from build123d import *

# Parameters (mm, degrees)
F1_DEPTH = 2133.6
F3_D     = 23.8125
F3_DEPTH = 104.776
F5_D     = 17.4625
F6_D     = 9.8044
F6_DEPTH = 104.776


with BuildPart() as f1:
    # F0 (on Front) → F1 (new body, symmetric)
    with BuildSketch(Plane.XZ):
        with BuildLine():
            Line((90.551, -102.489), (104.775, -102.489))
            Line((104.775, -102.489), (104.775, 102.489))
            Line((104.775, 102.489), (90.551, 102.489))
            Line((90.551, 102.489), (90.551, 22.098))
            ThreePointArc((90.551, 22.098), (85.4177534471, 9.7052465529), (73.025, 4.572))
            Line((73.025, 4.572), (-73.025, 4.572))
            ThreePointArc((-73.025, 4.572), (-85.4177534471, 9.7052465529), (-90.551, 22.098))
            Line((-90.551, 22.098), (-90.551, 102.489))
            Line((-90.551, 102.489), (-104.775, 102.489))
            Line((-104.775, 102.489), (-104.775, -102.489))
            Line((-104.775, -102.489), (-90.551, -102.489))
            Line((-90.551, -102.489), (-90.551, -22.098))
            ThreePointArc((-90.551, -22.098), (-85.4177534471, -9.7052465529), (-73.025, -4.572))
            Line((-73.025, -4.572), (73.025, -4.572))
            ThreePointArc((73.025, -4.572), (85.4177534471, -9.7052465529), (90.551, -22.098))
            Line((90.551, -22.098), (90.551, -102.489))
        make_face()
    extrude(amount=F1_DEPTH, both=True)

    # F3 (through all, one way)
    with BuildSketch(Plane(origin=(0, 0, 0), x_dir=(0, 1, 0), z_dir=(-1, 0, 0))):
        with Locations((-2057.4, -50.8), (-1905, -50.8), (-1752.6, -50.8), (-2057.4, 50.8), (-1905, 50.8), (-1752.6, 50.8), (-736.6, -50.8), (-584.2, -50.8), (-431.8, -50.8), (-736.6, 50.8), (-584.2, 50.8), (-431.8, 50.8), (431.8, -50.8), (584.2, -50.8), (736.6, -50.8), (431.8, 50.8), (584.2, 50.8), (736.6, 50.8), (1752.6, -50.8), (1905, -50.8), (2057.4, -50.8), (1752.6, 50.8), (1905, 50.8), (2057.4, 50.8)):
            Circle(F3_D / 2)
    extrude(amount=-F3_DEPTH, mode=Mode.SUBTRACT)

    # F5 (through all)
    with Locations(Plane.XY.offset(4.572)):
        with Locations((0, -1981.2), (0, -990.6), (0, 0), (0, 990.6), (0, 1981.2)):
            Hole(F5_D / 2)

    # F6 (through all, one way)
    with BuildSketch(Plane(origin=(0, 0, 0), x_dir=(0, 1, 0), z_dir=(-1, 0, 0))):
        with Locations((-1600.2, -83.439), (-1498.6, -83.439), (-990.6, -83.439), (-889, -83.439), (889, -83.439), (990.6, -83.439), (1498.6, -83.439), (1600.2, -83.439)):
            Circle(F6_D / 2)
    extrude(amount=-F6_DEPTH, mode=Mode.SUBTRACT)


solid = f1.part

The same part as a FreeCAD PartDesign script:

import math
import FreeCAD as App
import Part
import Sketcher
from FreeCAD import Vector
Q = App.Units.Quantity

doc = App.newDocument("Part")
body = doc.addObject("PartDesign::Body", "Body")

# Sketch on XZ plane
sketch1 = body.newObject("Sketcher::SketchObject", "Sketch")
sketch1.AttachmentSupport = (doc.getObject("XZ_Plane"), [""])
sketch1.MapMode = "FlatFace"
sketch1.addGeometry([
    Part.LineSegment(Vector(91, -102, 0), Vector(105, -102, 0)),  # 0
    Part.LineSegment(Vector(105, -102, 0), Vector(105, 102, 0)),  # 1
    Part.LineSegment(Vector(105, 102, 0), Vector(91, 102, 0)),  # 2
    Part.LineSegment(Vector(91, 102, 0), Vector(91, 22, 0)),  # 3
    Part.ArcOfCircle(Part.Circle(Vector(73, 22, 0), Vector(0, 0, 1), 18), math.radians(-90), math.radians(0)),  # 4
    Part.LineSegment(Vector(73, 5, 0), Vector(-73, 5, 0)),  # 5
    Part.ArcOfCircle(Part.Circle(Vector(-73, 22, 0), Vector(0, 0, 1), 18), math.radians(180), math.radians(270)),  # 6
    Part.LineSegment(Vector(-91, 22, 0), Vector(-91, 102, 0)),  # 7
    Part.LineSegment(Vector(-91, 102, 0), Vector(-105, 102, 0)),  # 8
    Part.LineSegment(Vector(-105, 102, 0), Vector(-105, -102, 0)),  # 9
    Part.LineSegment(Vector(-105, -102, 0), Vector(-91, -102, 0)),  # 10
    Part.LineSegment(Vector(-91, -102, 0), Vector(-91, -22, 0)),  # 11
    Part.ArcOfCircle(Part.Circle(Vector(-73, -22, 0), Vector(0, 0, 1), 18), math.radians(90), math.radians(180)),  # 12
    Part.LineSegment(Vector(-73, -5, 0), Vector(73, -5, 0)),  # 13
    Part.ArcOfCircle(Part.Circle(Vector(73, -22, 0), Vector(0, 0, 1), 18), math.radians(0), math.radians(90)),  # 14
    Part.LineSegment(Vector(91, -22, 0), Vector(91, -102, 0)),  # 15
], False)
sketch1.addConstraint([
    Sketcher.Constraint("Coincident", 0, 2, 1, 1),
    Sketcher.Constraint("Coincident", 1, 2, 2, 1),
    Sketcher.Constraint("Coincident", 2, 2, 3, 1),
    Sketcher.Constraint("Tangent", 3, 2, 4, 2),
    Sketcher.Constraint("Tangent", 4, 1, 5, 1),
    Sketcher.Constraint("Tangent", 5, 2, 6, 2),
    Sketcher.Constraint("Tangent", 6, 1, 7, 1),
    Sketcher.Constraint("Coincident", 7, 2, 8, 1),
    Sketcher.Constraint("Coincident", 8, 2, 9, 1),
    Sketcher.Constraint("Coincident", 9, 2, 10, 1),
    Sketcher.Constraint("Coincident", 10, 2, 11, 1),
    Sketcher.Constraint("Tangent", 11, 2, 12, 2),
    Sketcher.Constraint("Tangent", 12, 1, 13, 1),
    Sketcher.Constraint("Tangent", 13, 2, 14, 2),
    Sketcher.Constraint("Tangent", 14, 1, 15, 1),
    Sketcher.Constraint("Coincident", 15, 2, 0, 1),
    Sketcher.Constraint("Horizontal", 0),
    Sketcher.Constraint("Vertical", 1),
    Sketcher.Constraint("Horizontal", 2),
    Sketcher.Constraint("Vertical", 3),
    Sketcher.Constraint("Horizontal", 5),
    Sketcher.Constraint("Vertical", 7),
    Sketcher.Constraint("Horizontal", 8),
    Sketcher.Constraint("Vertical", 9),
    Sketcher.Constraint("Horizontal", 10),
    Sketcher.Constraint("Vertical", 11),
    Sketcher.Constraint("Horizontal", 13),
    Sketcher.Constraint("Vertical", 15),
    Sketcher.Constraint("Equal", 4, 6),
    Sketcher.Constraint("Equal", 6, 12),
    Sketcher.Constraint("Equal", 12, 14),
    Sketcher.Constraint("Symmetric", 4, 3, 12, 3, -1, 1),
    Sketcher.Constraint("Symmetric", 0, 2, 8, 2, -1, 1),
    Sketcher.Constraint("Symmetric", 2, 2, 7, 2, -2),
    Sketcher.Constraint("Symmetric", 10, 2, 15, 2, -2),
    Sketcher.Constraint("Radius", 4, Q("0.69 in")),
    Sketcher.Constraint("DistanceX", 12, 3, 0, 2, Q("7 in")),
    Sketcher.Constraint("DistanceX", 0, 1, 0, 2, Q("0.56 in")),
    Sketcher.Constraint("DistanceY", 1, 1, 1, 2, Q("8.07 in")),
    Sketcher.Constraint("DistanceY", 3, 2, 3, 1, Q("3.165 in")),
])
pad1 = body.newObject("PartDesign::Pad", "Pad")
pad1.Profile = sketch1
pad1.Length = Q("168 in")
pad1.Midplane = True

# Sketch on YZ plane
sketch2 = body.newObject("Sketcher::SketchObject", "Sketch001")
sketch2.AttachmentSupport = (doc.getObject("YZ_Plane"), [""])
sketch2.MapMode = "FlatFace"
sketch2.addGeometry([
    Part.Circle(Vector(2057, -51, 0), Vector(0, 0, 1), 12),  # 0
    Part.Circle(Vector(-2057, 51, 0), Vector(0, 0, 1), 12),  # 1
    Part.Circle(Vector(-1905, 51, 0), Vector(0, 0, 1), 12),  # 2
    Part.Circle(Vector(-1753, 51, 0), Vector(0, 0, 1), 12),  # 3
    Part.Circle(Vector(-2057, -51, 0), Vector(0, 0, 1), 12),  # 4
    Part.Circle(Vector(-1905, -51, 0), Vector(0, 0, 1), 12),  # 5
    Part.Circle(Vector(-1753, -51, 0), Vector(0, 0, 1), 12),  # 6
    Part.Circle(Vector(-737, 51, 0), Vector(0, 0, 1), 12),  # 7
    Part.Circle(Vector(-584, 51, 0), Vector(0, 0, 1), 12),  # 8
    Part.Circle(Vector(-432, 51, 0), Vector(0, 0, 1), 12),  # 9
    Part.Circle(Vector(-737, -51, 0), Vector(0, 0, 1), 12),  # 10
    Part.Circle(Vector(-584, -51, 0), Vector(0, 0, 1), 12),  # 11
    Part.Circle(Vector(-432, -51, 0), Vector(0, 0, 1), 12),  # 12
    Part.Circle(Vector(432, 51, 0), Vector(0, 0, 1), 12),  # 13
    Part.Circle(Vector(584, 51, 0), Vector(0, 0, 1), 12),  # 14
    Part.Circle(Vector(737, 51, 0), Vector(0, 0, 1), 12),  # 15
    Part.Circle(Vector(432, -51, 0), Vector(0, 0, 1), 12),  # 16
    Part.Circle(Vector(584, -51, 0), Vector(0, 0, 1), 12),  # 17
    Part.Circle(Vector(737, -51, 0), Vector(0, 0, 1), 12),  # 18
    Part.Circle(Vector(1753, 51, 0), Vector(0, 0, 1), 12),  # 19
    Part.Circle(Vector(1905, 51, 0), Vector(0, 0, 1), 12),  # 20
    Part.Circle(Vector(2057, 51, 0), Vector(0, 0, 1), 12),  # 21
    Part.Circle(Vector(1753, -51, 0), Vector(0, 0, 1), 12),  # 22
    Part.Circle(Vector(1905, -51, 0), Vector(0, 0, 1), 12),  # 23
], False)
sketch2.addConstraint([
    Sketcher.Constraint("Equal", 0, 1),
    Sketcher.Constraint("Equal", 1, 2),
    Sketcher.Constraint("Equal", 2, 3),
    Sketcher.Constraint("Equal", 3, 4),
    Sketcher.Constraint("Equal", 4, 5),
    Sketcher.Constraint("Equal", 5, 6),
    Sketcher.Constraint("Equal", 6, 7),
    Sketcher.Constraint("Equal", 7, 8),
    Sketcher.Constraint("Equal", 8, 9),
    Sketcher.Constraint("Equal", 9, 10),
    Sketcher.Constraint("Equal", 10, 11),
    Sketcher.Constraint("Equal", 11, 12),
    Sketcher.Constraint("Equal", 12, 13),
    Sketcher.Constraint("Equal", 13, 14),
    Sketcher.Constraint("Equal", 14, 15),
    Sketcher.Constraint("Equal", 15, 16),
    Sketcher.Constraint("Equal", 16, 17),
    Sketcher.Constraint("Equal", 17, 18),
    Sketcher.Constraint("Equal", 18, 19),
    Sketcher.Constraint("Equal", 19, 20),
    Sketcher.Constraint("Equal", 20, 21),
    Sketcher.Constraint("Equal", 21, 22),
    Sketcher.Constraint("Equal", 22, 23),
    Sketcher.Constraint("Symmetric", 0, 3, 1, 3, -1, 1),
    Sketcher.Constraint("Symmetric", 12, 3, 13, 3, -1, 1),
    Sketcher.Constraint("Symmetric", 11, 3, 14, 3, -1, 1),
    Sketcher.Constraint("Symmetric", 10, 3, 15, 3, -1, 1),
    Sketcher.Constraint("Symmetric", 9, 3, 16, 3, -1, 1),
    Sketcher.Constraint("Symmetric", 8, 3, 17, 3, -1, 1),
    Sketcher.Constraint("Symmetric", 7, 3, 18, 3, -1, 1),
    Sketcher.Constraint("Symmetric", 6, 3, 19, 3, -1, 1),
    Sketcher.Constraint("Symmetric", 5, 3, 20, 3, -1, 1),
    Sketcher.Constraint("Symmetric", 4, 3, 21, 3, -1, 1),
    Sketcher.Constraint("Symmetric", 3, 3, 22, 3, -1, 1),
    Sketcher.Constraint("Symmetric", 2, 3, 23, 3, -1, 1),
    Sketcher.Constraint("Symmetric", 0, 3, 4, 3, -2),
    Sketcher.Constraint("Symmetric", 9, 3, 13, 3, -2),
    Sketcher.Constraint("Symmetric", 8, 3, 14, 3, -2),
    Sketcher.Constraint("Symmetric", 7, 3, 15, 3, -2),
    Sketcher.Constraint("Symmetric", 3, 3, 19, 3, -2),
    Sketcher.Constraint("Symmetric", 2, 3, 20, 3, -2),
    Sketcher.Constraint("Horizontal", 1, 3, 2, 3),
    Sketcher.Constraint("Horizontal", 2, 3, 3, 3),
    Sketcher.Constraint("Horizontal", 3, 3, 7, 3),
    Sketcher.Constraint("Horizontal", 7, 3, 8, 3),
    Sketcher.Constraint("Horizontal", 8, 3, 9, 3),
    Sketcher.Constraint("Diameter", 0, Q("0.9375 in")),
    Sketcher.Constraint("DistanceX", -1, 1, 0, 3, Q("81 in")),
    Sketcher.Constraint("DistanceY", 0, 3, -1, 1, Q("2 in")),
    Sketcher.Constraint("DistanceX", 2, 3, -1, 1, Q("75 in")),
    Sketcher.Constraint("DistanceX", 3, 3, -1, 1, Q("69 in")),
    Sketcher.Constraint("DistanceX", 7, 3, -1, 1, Q("29 in")),
    Sketcher.Constraint("DistanceX", 8, 3, -1, 1, Q("23 in")),
    Sketcher.Constraint("DistanceX", 9, 3, -1, 1, Q("17 in")),
])
pocket1 = body.newObject("PartDesign::Pocket", "Pocket")
pocket1.Profile = sketch2
pocket1.Type = "ThroughAll"
pocket1.Reversed = True

# Sketch on XY plane
sketch3 = body.newObject("Sketcher::SketchObject", "Sketch002")
sketch3.AttachmentSupport = (doc.getObject("XY_Plane"), [""])
sketch3.MapMode = "FlatFace"
sketch3.AttachmentOffset = App.Placement(Vector(0, 0, 0.18 * 25.4), App.Rotation())
sketch3.addGeometry([
    Part.Circle(Vector(0, -1981, 0), Vector(0, 0, 1), 9),  # 0
    Part.Circle(Vector(0, -991, 0), Vector(0, 0, 1), 9),  # 1
    Part.Circle(Vector(0, 0, 0), Vector(0, 0, 1), 9),  # 2
    Part.Circle(Vector(0, 991, 0), Vector(0, 0, 1), 9),  # 3
    Part.Circle(Vector(0, 1981, 0), Vector(0, 0, 1), 9),  # 4
], False)
sketch3.addConstraint([
    Sketcher.Constraint("Coincident", 2, 3, -1, 1),
    Sketcher.Constraint("Equal", 0, 1),
    Sketcher.Constraint("Equal", 1, 2),
    Sketcher.Constraint("Equal", 2, 3),
    Sketcher.Constraint("Equal", 3, 4),
    Sketcher.Constraint("Symmetric", 1, 3, 3, 3, -1, 1),
    Sketcher.Constraint("Symmetric", 0, 3, 4, 3, -1, 1),
    Sketcher.Constraint("PointOnObject", 0, 3, -2),
    Sketcher.Constraint("PointOnObject", 1, 3, -2),
    Sketcher.Constraint("Diameter", 0, Q("0.6875 in")),
    Sketcher.Constraint("DistanceY", 0, 3, -1, 1, Q("78 in")),
    Sketcher.Constraint("DistanceY", 1, 3, -1, 1, Q("39 in")),
])
doc.recompute()
hole = body.newObject("PartDesign::Hole", "Hole")
hole.Profile = sketch3
hole.ThreadType = "None"
hole.Diameter = Q("0.6875 in")
hole.DepthType = "ThroughAll"

# Sketch on YZ plane
sketch4 = body.newObject("Sketcher::SketchObject", "Sketch003")
sketch4.AttachmentSupport = (doc.getObject("YZ_Plane"), [""])
sketch4.MapMode = "FlatFace"
sketch4.addGeometry([
    Part.Circle(Vector(1600.2, 83.4, 0), Vector(0, 0, 1), 4.9),  # 0
    Part.Circle(Vector(-1600.2, 83.4, 0), Vector(0, 0, 1), 4.9),  # 1
    Part.Circle(Vector(-1498.6, 83.4, 0), Vector(0, 0, 1), 4.9),  # 2
    Part.Circle(Vector(-990.6, 83.4, 0), Vector(0, 0, 1), 4.9),  # 3
    Part.Circle(Vector(-889, 83.4, 0), Vector(0, 0, 1), 4.9),  # 4
    Part.Circle(Vector(889, 83.4, 0), Vector(0, 0, 1), 4.9),  # 5
    Part.Circle(Vector(990.6, 83.4, 0), Vector(0, 0, 1), 4.9),  # 6
    Part.Circle(Vector(1498.6, 83.4, 0), Vector(0, 0, 1), 4.9),  # 7
], False)
sketch4.addConstraint([
    Sketcher.Constraint("Equal", 0, 1),
    Sketcher.Constraint("Equal", 1, 2),
    Sketcher.Constraint("Equal", 2, 3),
    Sketcher.Constraint("Equal", 3, 4),
    Sketcher.Constraint("Equal", 4, 5),
    Sketcher.Constraint("Equal", 5, 6),
    Sketcher.Constraint("Equal", 6, 7),
    Sketcher.Constraint("Symmetric", 0, 3, 1, 3, -2),
    Sketcher.Constraint("Symmetric", 4, 3, 5, 3, -2),
    Sketcher.Constraint("Symmetric", 3, 3, 6, 3, -2),
    Sketcher.Constraint("Symmetric", 2, 3, 7, 3, -2),
    Sketcher.Constraint("Horizontal", 1, 3, 2, 3),
    Sketcher.Constraint("Horizontal", 2, 3, 3, 3),
    Sketcher.Constraint("Horizontal", 3, 3, 4, 3),
    Sketcher.Constraint("Diameter", 0, Q("0.386 in")),
    Sketcher.Constraint("DistanceX", -1, 1, 0, 3, Q("63 in")),
    Sketcher.Constraint("DistanceX", 2, 3, -1, 1, Q("59 in")),
    Sketcher.Constraint("DistanceX", 3, 3, -1, 1, Q("39 in")),
    Sketcher.Constraint("DistanceX", 4, 3, -1, 1, Q("35 in")),
    Sketcher.Constraint("DistanceY", -1, 1, 0, 3, Q("3.285 in")),
])
pocket2 = body.newObject("PartDesign::Pocket", "Pocket001")
pocket2.Profile = sketch4
pocket2.Type = "ThroughAll"
pocket2.Reversed = True

doc.recompute()
